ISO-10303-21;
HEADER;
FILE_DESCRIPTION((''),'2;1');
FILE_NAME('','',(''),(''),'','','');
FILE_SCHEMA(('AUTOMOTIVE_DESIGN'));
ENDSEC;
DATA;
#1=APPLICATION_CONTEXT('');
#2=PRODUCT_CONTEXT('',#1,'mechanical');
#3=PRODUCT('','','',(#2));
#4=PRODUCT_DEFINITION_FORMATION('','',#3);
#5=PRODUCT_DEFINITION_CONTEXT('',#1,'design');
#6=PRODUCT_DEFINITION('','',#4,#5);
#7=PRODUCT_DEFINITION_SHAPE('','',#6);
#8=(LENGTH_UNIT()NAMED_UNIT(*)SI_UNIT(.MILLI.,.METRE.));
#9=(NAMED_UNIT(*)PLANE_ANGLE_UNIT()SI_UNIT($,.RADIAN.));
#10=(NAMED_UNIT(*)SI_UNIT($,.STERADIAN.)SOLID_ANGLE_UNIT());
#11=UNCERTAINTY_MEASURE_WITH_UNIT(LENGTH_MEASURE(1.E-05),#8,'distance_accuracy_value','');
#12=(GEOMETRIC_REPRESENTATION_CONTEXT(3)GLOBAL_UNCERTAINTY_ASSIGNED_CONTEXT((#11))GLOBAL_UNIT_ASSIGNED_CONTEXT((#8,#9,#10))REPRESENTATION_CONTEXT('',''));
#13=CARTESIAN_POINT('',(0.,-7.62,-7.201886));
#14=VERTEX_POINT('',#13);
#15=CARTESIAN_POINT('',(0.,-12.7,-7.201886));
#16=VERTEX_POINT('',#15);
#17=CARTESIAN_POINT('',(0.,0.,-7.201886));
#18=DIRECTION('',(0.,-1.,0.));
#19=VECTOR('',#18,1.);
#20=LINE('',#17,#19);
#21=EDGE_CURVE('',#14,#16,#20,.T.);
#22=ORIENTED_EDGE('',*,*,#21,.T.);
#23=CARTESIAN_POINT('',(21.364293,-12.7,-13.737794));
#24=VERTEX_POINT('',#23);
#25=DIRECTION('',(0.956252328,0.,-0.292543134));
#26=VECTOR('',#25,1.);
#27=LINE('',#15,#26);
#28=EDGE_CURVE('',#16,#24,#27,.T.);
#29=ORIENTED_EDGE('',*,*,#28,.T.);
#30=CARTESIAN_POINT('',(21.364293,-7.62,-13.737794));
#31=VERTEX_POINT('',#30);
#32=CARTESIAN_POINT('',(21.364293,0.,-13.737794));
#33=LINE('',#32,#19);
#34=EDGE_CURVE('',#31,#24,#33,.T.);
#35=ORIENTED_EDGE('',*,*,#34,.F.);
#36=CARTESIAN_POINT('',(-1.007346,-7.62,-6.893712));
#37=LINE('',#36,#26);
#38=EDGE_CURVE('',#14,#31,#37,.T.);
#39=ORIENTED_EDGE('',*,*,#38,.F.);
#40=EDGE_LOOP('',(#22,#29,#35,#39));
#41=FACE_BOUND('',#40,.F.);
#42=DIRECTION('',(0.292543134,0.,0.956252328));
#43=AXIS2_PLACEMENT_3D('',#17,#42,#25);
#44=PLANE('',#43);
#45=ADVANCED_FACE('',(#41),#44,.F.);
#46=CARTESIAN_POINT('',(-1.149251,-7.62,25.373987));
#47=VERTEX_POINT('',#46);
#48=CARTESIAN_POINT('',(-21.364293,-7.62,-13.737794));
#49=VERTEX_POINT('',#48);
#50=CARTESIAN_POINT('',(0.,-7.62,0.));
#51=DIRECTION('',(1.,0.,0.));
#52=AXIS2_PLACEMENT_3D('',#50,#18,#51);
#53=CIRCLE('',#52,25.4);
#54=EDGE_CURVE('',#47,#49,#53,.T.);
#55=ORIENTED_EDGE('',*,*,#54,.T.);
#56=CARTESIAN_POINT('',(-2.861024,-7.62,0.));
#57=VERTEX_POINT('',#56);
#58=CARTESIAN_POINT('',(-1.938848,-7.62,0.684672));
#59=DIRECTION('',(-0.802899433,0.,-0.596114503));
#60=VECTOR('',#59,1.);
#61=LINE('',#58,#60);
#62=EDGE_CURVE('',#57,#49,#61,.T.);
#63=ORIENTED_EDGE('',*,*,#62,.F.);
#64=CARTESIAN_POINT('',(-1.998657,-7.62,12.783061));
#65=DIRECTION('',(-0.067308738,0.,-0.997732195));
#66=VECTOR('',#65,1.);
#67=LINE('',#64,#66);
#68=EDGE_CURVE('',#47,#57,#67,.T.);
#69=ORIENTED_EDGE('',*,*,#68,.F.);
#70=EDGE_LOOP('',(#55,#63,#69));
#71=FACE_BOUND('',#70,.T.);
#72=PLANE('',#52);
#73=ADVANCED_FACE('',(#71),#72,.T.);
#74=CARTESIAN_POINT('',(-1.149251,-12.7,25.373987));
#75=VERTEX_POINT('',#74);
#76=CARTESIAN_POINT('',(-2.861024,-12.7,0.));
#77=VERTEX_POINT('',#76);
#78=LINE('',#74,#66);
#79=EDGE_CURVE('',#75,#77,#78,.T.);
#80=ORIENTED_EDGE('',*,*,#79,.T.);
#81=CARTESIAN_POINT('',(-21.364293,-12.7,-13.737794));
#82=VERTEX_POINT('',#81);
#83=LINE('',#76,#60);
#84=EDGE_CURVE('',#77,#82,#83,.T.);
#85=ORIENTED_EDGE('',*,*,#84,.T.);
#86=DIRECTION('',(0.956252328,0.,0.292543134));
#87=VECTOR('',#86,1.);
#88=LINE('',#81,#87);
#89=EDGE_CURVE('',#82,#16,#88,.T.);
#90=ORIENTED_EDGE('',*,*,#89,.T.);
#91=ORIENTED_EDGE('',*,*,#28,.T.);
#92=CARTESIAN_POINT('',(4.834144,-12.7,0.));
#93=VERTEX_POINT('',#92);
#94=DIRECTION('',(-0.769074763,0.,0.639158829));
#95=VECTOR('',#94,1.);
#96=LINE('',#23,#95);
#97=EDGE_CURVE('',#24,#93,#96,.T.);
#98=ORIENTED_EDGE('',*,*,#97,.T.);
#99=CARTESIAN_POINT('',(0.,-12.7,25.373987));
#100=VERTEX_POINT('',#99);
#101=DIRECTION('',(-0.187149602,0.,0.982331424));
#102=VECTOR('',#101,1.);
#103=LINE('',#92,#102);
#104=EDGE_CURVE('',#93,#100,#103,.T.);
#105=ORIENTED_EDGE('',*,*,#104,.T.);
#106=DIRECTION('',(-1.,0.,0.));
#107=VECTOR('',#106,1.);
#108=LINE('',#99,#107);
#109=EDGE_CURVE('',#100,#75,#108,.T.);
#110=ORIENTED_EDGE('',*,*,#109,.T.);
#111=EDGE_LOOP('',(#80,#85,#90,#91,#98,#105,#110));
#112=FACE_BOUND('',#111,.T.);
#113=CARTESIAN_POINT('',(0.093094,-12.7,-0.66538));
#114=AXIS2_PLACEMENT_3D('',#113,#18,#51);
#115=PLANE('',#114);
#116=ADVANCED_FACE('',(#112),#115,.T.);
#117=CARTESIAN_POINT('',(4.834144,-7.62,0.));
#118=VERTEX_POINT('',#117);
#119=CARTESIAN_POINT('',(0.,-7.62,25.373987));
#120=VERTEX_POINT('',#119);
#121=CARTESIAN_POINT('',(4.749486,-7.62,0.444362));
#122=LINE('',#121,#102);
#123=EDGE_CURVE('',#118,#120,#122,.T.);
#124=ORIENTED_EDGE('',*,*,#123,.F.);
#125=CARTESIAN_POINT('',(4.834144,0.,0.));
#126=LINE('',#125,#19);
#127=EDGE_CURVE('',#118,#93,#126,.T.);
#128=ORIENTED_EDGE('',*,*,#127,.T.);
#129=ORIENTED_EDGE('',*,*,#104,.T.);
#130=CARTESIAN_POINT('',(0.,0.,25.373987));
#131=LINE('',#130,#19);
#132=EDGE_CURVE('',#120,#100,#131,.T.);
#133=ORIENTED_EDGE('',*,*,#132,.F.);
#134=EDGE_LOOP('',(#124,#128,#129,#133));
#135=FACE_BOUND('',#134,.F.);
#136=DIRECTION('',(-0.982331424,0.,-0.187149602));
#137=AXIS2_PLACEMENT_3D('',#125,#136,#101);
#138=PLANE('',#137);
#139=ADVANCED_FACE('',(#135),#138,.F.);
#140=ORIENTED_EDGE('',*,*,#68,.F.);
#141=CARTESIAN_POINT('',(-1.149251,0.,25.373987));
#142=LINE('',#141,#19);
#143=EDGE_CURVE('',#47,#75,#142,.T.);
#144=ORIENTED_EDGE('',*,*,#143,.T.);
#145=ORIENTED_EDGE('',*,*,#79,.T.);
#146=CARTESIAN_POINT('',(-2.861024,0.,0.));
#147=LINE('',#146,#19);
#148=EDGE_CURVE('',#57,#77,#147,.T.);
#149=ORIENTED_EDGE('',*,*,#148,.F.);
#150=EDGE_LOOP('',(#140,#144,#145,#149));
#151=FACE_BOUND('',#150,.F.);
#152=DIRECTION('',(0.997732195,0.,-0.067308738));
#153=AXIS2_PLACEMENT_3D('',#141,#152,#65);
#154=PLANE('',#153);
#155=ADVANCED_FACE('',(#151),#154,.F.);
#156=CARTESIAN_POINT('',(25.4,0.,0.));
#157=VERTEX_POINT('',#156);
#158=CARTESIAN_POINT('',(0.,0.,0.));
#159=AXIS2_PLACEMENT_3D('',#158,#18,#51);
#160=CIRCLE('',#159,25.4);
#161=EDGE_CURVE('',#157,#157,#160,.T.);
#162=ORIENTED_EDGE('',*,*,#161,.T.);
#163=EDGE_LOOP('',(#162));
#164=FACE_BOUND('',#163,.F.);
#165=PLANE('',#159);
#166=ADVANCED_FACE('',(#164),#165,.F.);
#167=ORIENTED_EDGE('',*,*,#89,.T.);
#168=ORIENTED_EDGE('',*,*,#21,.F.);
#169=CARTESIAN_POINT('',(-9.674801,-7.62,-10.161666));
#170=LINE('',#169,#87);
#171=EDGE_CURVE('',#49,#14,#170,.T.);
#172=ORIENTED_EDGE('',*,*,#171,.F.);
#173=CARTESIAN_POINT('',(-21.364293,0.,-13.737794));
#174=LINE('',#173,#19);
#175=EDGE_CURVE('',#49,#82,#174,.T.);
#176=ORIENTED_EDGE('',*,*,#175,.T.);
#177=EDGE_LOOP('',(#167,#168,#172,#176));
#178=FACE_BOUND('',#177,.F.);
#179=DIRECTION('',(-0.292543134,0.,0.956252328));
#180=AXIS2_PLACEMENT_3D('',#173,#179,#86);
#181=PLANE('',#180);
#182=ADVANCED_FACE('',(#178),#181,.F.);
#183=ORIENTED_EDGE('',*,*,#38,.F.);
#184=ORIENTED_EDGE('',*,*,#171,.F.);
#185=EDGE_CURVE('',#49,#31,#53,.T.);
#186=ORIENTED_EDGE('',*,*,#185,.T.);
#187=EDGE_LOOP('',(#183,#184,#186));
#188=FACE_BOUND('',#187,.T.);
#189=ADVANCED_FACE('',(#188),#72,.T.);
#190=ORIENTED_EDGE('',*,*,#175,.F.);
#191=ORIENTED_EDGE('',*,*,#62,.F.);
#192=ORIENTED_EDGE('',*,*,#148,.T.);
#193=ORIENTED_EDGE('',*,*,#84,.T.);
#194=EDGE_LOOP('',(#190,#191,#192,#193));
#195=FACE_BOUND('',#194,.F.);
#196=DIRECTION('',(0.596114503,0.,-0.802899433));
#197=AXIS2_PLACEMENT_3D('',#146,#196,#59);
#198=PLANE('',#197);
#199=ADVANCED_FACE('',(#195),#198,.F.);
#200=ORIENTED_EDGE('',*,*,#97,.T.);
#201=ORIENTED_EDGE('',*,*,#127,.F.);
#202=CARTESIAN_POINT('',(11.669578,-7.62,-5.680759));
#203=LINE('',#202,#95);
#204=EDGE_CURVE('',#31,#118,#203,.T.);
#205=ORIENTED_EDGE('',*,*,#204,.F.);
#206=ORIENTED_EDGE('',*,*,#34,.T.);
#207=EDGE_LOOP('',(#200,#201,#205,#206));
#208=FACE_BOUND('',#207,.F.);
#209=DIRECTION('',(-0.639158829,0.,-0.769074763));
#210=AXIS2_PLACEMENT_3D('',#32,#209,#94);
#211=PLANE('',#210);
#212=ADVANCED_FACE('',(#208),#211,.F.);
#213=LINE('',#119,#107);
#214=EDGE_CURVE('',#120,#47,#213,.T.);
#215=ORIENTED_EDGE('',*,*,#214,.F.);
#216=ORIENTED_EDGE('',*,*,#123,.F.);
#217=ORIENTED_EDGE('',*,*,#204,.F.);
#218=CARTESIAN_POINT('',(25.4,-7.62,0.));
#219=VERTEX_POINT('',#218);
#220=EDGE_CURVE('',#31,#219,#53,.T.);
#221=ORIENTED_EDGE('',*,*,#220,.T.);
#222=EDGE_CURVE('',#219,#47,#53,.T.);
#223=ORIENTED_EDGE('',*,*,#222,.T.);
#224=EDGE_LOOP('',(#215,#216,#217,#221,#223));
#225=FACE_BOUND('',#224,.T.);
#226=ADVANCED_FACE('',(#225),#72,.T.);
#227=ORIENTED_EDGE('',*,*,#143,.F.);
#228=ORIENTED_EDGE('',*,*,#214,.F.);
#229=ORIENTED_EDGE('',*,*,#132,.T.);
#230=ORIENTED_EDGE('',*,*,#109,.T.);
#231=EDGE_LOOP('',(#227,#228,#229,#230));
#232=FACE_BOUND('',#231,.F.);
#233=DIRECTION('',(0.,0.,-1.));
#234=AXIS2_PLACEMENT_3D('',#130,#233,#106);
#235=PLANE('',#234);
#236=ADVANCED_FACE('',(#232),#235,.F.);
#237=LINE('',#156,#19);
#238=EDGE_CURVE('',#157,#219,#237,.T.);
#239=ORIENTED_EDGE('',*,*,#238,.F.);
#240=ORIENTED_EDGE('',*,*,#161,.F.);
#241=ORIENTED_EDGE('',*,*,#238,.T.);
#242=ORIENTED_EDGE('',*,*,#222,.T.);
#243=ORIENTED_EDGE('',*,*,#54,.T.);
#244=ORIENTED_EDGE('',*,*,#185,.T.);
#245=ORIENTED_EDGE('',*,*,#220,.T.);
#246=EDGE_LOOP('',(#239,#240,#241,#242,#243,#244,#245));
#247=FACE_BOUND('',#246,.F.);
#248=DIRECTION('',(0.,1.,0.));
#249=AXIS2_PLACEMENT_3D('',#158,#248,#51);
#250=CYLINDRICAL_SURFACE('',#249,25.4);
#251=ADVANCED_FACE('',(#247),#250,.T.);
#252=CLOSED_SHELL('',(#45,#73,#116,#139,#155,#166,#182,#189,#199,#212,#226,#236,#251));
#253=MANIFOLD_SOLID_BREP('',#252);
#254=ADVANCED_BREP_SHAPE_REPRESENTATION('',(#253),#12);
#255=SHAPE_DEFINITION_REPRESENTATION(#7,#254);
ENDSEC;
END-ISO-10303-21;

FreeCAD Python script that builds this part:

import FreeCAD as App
import Part
import Sketcher
Q = App.Units.Quantity

doc = App.newDocument("Part")
body = doc.addObject("PartDesign::Body", "Body")

# Sketch on XZ plane
sketch1 = body.newObject("Sketcher::SketchObject", "Sketch")
sketch1.AttachmentSupport = (doc.getObject("XZ_Plane"), [""])
sketch1.MapMode = "FlatFace"
sketch1.addGeometry(Part.LineSegment(App.Vector(0, 25.4, 0), App.Vector(-1.1, 25.4, 0)), False)
sketch1.addGeometry(Part.LineSegment(App.Vector(-1.1, 25.4, 0), App.Vector(-2.9, 0, 0)), False)
sketch1.addGeometry(Part.LineSegment(App.Vector(-2.9, 0, 0), App.Vector(-21.4, -13.7, 0)), False)
sketch1.addGeometry(Part.LineSegment(App.Vector(-21.4, -13.7, 0), App.Vector(0, -7.2, 0)), False)
sketch1.addGeometry(Part.LineSegment(App.Vector(0, -7.2, 0), App.Vector(21.4, -13.7, 0)), False)
sketch1.addGeometry(Part.LineSegment(App.Vector(21.4, -13.7, 0), App.Vector(4.8, 0, 0)), False)
sketch1.addGeometry(Part.LineSegment(App.Vector(4.8, 0, 0), App.Vector(0, 25.4, 0)), False)
sketch1.addConstraint(Sketcher.Constraint("Coincident", 0, 2, 1, 1))
sketch1.addConstraint(Sketcher.Constraint("Coincident", 1, 2, 2, 1))
sketch1.addConstraint(Sketcher.Constraint("Coincident", 2, 2, 3, 1))
sketch1.addConstraint(Sketcher.Constraint("Coincident", 3, 2, 4, 1))
sketch1.addConstraint(Sketcher.Constraint("Coincident", 4, 2, 5, 1))
sketch1.addConstraint(Sketcher.Constraint("Coincident", 5, 2, 6, 1))
sketch1.addConstraint(Sketcher.Constraint("Coincident", 6, 2, 0, 1))
sketch1.addConstraint(Sketcher.Constraint("Horizontal", 0))
sketch1.addConstraint(Sketcher.Constraint("Symmetric", 2, 2, 4, 2, -2))
sketch1.addConstraint(Sketcher.Constraint("PointOnObject", 1, 2, -1))
sketch1.addConstraint(Sketcher.Constraint("PointOnObject", 3, 2, -2))
sketch1.addConstraint(Sketcher.Constraint("PointOnObject", 5, 2, -1))
sketch1.addConstraint(Sketcher.Constraint("PointOnObject", 6, 2, -2))
sketch1.addConstraint(Sketcher.Constraint("DistanceX", 0, 2, 0, 1, 1.149251))
sketch1.addConstraint(Sketcher.Constraint("Distance", 1, 25.431661))
sketch1.addConstraint(Sketcher.Constraint("Distance", 3, 22.34169))
sketch1.addConstraint(Sketcher.Constraint("DistanceX", 2, 2, 1, 2, 18.503269))
sketch1.addConstraint(Sketcher.Constraint("DistanceY", 2, 2, 0, 2, 39.111781))
sketch1.addConstraint(Sketcher.Constraint("DistanceX", 1, 2, 5, 2, 7.695168))
sketch1.addConstraint(Sketcher.Constraint("DistanceX", 5, 2, 4, 2, 16.530149))
pad1 = body.newObject("PartDesign::Pad", "Pad")
pad1.Profile = sketch1
pad1.Length = Q("0.5 in")

# Sketch on XZ plane
sketch2 = body.newObject("Sketcher::SketchObject", "Sketch001")
sketch2.AttachmentSupport = (doc.getObject("XZ_Plane"), [""])
sketch2.MapMode = "FlatFace"
sketch2.addGeometry(Part.Circle(App.Vector(0, 0, 0), App.Vector(0, 0, 1), 25), False)
sketch2.addConstraint(Sketcher.Constraint("Coincident", 0, 3, -1, 1))
sketch2.addConstraint(Sketcher.Constraint("Diameter", 0, Q("2 in")))
pad2 = body.newObject("PartDesign::Pad", "Pad001")
pad2.Profile = sketch2
pad2.Length = Q("0.3 in")

doc.recompute()
